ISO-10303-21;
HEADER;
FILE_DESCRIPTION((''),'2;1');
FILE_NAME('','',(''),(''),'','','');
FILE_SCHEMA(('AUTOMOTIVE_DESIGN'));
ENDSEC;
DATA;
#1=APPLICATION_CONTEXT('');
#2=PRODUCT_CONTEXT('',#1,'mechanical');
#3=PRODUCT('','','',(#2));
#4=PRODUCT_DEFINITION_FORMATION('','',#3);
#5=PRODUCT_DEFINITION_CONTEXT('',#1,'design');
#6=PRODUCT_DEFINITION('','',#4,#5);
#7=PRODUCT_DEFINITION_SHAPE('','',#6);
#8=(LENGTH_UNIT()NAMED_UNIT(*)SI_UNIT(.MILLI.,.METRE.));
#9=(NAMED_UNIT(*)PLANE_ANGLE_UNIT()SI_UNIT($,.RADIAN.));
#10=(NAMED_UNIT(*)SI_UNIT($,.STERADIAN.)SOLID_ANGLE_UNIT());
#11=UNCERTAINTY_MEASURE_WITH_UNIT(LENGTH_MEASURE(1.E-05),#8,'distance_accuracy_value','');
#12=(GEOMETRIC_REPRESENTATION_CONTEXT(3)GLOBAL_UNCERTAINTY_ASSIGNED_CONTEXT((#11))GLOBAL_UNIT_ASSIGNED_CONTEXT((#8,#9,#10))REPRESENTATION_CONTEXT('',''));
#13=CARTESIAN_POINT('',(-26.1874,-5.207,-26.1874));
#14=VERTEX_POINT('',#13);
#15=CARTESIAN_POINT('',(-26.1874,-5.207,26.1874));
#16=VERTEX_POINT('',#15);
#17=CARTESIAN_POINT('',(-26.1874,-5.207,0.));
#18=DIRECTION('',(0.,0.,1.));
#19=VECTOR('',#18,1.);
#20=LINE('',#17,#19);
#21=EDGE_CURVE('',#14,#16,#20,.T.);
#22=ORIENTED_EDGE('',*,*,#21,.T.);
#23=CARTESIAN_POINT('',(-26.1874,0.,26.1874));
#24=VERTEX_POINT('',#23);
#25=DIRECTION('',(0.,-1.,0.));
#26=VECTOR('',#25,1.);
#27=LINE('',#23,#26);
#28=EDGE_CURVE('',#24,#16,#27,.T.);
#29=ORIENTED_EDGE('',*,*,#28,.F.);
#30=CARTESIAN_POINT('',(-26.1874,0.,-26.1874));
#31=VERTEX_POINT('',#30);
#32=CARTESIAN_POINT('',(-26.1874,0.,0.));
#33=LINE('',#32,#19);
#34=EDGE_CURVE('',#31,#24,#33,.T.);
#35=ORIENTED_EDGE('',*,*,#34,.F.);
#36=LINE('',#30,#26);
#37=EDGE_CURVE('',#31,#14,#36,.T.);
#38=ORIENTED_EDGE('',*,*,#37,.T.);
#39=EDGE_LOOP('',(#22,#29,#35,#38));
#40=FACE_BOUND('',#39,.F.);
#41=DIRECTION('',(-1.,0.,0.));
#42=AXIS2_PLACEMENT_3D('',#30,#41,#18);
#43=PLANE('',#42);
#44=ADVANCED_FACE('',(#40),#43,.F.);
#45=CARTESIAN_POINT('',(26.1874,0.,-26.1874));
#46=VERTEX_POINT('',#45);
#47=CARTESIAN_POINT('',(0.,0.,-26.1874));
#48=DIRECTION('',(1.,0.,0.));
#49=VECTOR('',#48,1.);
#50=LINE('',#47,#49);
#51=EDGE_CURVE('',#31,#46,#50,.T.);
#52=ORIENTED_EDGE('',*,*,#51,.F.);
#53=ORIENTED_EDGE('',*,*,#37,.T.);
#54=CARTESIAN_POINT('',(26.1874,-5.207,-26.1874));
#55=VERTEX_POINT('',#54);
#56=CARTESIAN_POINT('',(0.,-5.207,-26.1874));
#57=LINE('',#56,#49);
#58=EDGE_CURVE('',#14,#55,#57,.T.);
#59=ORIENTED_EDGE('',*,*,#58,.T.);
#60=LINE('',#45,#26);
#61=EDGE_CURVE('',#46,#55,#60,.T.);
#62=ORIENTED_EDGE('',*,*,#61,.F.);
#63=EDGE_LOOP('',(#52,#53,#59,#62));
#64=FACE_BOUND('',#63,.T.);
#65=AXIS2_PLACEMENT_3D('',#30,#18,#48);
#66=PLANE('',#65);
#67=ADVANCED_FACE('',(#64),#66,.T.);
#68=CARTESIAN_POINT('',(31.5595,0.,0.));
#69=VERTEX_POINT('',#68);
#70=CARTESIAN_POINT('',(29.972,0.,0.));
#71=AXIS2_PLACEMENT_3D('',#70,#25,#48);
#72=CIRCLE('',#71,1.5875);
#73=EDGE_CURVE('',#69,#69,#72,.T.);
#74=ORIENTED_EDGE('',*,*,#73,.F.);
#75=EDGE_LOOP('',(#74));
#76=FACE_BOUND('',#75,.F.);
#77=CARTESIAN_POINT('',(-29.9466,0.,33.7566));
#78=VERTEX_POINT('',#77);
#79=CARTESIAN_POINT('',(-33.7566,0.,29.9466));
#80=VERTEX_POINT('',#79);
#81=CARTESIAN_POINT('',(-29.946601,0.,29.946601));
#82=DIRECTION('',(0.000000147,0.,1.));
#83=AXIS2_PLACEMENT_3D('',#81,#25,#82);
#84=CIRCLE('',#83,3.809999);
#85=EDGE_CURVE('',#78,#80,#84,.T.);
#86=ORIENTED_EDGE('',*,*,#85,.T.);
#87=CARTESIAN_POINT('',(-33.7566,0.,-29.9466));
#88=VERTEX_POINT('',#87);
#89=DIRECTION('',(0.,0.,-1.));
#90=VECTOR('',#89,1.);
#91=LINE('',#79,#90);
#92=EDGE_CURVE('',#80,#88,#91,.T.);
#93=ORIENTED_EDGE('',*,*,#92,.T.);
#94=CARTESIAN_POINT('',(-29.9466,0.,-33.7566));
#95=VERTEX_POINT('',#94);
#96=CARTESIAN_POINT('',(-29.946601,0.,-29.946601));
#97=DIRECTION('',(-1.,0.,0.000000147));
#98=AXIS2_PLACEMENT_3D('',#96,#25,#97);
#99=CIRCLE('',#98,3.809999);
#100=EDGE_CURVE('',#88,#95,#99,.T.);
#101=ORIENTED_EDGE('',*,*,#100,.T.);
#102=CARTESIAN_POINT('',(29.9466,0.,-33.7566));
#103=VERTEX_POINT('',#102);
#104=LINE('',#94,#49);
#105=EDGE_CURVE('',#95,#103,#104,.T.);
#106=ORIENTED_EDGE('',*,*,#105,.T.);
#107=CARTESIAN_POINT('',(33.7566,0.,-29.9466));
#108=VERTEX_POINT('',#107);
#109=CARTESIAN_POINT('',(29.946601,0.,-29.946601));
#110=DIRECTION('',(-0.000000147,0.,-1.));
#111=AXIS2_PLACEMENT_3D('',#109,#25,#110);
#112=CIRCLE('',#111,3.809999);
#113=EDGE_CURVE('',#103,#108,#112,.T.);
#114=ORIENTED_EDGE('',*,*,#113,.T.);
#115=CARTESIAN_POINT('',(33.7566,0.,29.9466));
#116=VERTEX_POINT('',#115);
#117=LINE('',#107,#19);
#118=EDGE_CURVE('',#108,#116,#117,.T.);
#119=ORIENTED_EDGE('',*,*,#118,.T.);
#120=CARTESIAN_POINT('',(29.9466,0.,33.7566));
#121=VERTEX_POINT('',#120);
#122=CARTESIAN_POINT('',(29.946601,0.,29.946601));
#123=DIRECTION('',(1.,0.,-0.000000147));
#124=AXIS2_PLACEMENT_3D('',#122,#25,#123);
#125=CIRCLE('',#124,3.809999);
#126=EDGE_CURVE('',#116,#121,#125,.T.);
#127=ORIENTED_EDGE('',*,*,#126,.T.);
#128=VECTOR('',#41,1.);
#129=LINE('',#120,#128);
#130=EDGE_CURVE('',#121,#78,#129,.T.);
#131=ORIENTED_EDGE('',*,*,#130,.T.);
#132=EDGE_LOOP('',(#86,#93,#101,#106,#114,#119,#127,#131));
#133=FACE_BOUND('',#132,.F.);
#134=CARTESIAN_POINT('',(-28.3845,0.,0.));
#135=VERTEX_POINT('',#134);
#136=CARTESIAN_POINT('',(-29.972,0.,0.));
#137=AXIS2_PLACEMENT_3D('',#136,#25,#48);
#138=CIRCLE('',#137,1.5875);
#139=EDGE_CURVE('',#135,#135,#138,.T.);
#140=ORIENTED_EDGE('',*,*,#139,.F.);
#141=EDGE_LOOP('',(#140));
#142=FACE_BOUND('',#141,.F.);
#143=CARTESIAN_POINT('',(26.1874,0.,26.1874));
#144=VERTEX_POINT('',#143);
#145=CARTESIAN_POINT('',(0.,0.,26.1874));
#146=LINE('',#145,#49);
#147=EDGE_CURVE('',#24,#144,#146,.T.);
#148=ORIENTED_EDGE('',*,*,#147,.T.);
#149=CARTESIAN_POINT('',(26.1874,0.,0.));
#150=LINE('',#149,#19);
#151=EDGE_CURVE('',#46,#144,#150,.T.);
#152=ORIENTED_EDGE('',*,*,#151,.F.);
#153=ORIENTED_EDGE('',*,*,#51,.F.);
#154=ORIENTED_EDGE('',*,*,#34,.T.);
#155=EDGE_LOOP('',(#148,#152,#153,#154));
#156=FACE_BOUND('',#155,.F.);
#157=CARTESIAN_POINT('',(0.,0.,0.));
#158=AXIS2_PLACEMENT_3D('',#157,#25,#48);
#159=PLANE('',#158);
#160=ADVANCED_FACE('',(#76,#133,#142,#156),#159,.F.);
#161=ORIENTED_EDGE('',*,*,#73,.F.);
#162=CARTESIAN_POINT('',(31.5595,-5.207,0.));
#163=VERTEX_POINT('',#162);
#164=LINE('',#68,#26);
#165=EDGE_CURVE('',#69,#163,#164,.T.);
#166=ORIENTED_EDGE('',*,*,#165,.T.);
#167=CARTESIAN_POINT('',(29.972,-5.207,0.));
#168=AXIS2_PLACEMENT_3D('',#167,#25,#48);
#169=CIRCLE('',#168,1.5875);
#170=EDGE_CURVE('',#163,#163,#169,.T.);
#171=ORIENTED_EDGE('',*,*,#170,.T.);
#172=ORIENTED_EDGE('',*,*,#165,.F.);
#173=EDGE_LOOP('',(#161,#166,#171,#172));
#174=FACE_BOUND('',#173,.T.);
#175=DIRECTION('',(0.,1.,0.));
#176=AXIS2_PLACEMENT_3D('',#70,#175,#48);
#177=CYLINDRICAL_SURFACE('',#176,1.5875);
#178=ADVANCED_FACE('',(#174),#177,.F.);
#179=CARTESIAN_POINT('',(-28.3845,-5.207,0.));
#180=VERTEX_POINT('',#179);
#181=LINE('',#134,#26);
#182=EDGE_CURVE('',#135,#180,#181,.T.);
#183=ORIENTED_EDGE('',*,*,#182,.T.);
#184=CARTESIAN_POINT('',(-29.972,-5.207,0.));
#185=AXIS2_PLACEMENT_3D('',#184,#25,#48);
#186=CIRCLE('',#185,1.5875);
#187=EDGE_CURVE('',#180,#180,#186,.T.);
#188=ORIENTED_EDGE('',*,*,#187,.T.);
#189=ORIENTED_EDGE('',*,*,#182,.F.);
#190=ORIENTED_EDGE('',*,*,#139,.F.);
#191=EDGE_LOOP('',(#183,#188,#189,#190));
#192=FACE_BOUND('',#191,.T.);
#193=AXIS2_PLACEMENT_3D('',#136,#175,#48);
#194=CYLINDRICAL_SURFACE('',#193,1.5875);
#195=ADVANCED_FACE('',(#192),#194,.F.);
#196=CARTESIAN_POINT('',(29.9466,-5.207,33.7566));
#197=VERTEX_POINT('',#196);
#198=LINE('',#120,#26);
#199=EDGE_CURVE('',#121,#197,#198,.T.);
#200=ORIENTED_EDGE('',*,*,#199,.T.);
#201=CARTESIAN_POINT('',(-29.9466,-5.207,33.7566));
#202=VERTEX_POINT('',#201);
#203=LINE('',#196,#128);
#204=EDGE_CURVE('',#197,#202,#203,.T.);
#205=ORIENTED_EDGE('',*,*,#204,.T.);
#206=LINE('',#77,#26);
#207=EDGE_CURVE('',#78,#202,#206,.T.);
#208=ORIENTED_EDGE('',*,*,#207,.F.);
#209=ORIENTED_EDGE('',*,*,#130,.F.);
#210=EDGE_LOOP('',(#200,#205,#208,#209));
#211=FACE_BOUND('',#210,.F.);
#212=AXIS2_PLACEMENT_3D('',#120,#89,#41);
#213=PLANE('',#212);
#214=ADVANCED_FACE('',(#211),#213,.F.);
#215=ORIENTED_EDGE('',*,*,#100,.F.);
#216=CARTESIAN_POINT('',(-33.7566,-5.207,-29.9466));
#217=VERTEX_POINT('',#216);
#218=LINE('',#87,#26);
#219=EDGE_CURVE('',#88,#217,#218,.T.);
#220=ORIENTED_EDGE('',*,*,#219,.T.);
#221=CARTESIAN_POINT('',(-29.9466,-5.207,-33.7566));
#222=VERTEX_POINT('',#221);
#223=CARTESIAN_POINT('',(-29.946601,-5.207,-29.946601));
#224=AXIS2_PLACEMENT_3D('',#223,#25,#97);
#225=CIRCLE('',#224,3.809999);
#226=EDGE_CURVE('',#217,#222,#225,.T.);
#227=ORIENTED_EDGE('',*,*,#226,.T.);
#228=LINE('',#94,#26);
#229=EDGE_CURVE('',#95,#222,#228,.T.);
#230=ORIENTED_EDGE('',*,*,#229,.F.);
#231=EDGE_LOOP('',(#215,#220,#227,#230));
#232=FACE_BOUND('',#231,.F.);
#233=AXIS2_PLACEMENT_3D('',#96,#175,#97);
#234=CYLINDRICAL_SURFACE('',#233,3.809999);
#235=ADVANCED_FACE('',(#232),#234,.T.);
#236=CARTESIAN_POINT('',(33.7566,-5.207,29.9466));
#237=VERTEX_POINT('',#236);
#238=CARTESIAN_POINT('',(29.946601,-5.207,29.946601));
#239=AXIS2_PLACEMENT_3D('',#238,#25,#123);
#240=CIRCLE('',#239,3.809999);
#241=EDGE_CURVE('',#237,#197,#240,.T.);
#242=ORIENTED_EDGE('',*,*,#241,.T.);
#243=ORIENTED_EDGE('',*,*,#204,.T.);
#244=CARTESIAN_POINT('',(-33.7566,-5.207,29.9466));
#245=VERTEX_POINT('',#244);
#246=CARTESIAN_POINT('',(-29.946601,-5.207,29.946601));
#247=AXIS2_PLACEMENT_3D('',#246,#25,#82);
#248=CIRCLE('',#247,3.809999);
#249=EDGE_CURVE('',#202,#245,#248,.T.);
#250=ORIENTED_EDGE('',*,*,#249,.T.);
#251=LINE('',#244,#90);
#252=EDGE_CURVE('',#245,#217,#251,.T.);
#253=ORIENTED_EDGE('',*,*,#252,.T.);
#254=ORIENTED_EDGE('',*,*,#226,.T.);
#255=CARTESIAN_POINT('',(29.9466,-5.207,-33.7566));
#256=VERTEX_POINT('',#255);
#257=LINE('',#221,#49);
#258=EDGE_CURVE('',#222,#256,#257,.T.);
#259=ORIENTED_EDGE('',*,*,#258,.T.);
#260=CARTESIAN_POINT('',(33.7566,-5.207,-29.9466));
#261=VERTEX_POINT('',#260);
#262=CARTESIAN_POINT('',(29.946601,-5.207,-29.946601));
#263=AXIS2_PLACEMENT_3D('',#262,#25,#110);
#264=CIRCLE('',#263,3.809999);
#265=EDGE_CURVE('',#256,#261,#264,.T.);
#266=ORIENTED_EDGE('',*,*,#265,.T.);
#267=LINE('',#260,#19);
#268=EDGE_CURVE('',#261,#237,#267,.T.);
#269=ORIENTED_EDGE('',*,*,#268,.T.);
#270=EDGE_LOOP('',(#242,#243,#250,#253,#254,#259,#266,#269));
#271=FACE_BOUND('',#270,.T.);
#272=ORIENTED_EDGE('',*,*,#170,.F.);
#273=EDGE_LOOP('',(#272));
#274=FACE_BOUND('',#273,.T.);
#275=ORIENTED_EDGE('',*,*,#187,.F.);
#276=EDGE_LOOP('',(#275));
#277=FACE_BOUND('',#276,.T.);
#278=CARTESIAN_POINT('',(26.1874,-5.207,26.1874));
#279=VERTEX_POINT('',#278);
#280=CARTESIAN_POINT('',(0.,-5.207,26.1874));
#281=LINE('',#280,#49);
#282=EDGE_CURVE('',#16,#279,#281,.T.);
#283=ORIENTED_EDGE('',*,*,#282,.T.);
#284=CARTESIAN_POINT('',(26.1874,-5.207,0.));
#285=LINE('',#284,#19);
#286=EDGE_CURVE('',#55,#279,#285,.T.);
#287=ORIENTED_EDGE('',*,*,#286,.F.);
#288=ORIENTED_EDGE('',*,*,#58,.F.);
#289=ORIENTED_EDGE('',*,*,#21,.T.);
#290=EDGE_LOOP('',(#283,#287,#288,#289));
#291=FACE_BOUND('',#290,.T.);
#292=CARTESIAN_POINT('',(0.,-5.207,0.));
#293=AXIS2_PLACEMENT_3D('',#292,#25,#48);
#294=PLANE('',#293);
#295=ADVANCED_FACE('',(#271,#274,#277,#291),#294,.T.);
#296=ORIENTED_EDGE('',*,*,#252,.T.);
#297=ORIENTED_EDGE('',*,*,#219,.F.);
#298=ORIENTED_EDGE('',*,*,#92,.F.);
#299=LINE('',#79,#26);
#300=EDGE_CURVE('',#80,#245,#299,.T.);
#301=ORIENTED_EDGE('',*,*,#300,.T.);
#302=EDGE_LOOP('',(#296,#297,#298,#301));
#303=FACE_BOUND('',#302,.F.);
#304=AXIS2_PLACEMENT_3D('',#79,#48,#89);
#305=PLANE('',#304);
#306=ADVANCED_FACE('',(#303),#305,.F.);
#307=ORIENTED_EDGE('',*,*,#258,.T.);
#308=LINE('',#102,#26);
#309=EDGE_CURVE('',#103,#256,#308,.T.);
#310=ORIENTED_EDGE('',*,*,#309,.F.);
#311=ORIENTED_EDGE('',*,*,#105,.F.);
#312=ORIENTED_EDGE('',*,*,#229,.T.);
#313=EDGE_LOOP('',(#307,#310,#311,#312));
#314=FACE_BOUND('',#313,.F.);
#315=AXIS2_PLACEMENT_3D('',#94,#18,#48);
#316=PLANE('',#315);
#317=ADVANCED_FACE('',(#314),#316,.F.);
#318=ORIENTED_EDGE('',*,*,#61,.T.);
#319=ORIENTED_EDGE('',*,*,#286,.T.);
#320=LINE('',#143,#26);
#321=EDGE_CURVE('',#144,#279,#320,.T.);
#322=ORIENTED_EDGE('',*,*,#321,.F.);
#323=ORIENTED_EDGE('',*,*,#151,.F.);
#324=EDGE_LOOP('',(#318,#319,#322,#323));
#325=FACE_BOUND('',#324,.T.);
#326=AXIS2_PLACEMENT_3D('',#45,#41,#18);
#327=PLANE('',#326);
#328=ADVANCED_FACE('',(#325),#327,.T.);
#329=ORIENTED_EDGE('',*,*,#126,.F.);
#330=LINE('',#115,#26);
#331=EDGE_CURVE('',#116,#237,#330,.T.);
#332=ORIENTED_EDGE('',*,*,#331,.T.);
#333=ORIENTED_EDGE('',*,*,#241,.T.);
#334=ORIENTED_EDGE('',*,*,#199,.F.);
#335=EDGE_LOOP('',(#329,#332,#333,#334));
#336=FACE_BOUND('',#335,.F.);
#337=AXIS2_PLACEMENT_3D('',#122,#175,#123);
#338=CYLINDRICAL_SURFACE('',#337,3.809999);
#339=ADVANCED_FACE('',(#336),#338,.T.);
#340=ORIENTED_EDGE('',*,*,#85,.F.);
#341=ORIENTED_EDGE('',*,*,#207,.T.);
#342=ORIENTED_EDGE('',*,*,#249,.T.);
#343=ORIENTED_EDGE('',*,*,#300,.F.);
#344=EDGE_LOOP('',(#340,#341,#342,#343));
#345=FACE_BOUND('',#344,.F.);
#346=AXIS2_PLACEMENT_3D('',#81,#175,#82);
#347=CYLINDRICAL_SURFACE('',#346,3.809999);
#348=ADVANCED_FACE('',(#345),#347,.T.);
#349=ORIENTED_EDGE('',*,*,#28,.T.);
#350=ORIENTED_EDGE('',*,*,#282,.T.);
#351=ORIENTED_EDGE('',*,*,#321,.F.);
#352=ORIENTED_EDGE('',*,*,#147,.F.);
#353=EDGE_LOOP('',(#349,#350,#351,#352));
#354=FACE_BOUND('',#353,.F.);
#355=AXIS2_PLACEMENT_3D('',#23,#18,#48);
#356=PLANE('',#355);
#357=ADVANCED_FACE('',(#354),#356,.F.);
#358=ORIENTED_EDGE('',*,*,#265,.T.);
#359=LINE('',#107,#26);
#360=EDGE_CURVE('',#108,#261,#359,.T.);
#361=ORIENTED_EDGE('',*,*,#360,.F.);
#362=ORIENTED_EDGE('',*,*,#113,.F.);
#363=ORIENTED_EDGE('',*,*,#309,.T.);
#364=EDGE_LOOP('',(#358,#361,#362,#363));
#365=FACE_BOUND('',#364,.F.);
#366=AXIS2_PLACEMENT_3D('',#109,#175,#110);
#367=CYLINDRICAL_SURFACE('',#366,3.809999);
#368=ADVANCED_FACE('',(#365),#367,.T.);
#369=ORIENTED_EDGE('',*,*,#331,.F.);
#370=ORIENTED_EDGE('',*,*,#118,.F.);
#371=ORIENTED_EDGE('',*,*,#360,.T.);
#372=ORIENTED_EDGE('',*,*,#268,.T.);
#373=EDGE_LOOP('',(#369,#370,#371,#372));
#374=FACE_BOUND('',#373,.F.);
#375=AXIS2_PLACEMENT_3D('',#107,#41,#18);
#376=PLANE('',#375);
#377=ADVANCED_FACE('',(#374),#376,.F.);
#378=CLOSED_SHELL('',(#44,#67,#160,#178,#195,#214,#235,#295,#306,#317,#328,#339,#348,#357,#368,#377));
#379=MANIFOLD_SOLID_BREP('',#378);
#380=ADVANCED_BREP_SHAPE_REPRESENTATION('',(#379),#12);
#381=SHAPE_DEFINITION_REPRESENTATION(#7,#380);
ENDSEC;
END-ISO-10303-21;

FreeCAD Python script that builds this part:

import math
import FreeCAD as App
import Part
import Sketcher
from FreeCAD import Vector
Q = App.Units.Quantity

doc = App.newDocument("Part")
params = doc.addObject("Spreadsheet::Sheet", "Params")
for row, (alias, value) in enumerate([
    ("sketch1_radius", "0.15 in"),
    ("sketch1_diameter", "0.125 in"),
    ("sketch1_width", "2.358 in"),
    ("sketch1_width2", "2.062 in"),
    ("pad1_length", "0.205 in"),
], start=1):
    params.set(f"A{row}", alias)
    params.set(f"B{row}", "=" + value)
    params.setAlias(f"B{row}", alias)

body = doc.addObject("PartDesign::Body", "Body")

sketch1 = body.newObject("Sketcher::SketchObject", "Sketch")
sketch1.AttachmentSupport = (doc.getObject("XZ_Plane"), [""])
sketch1.MapMode = "FlatFace"
sketch1.addGeometry([
    Part.LineSegment(Vector(-29.9466, -33.7566, 0), Vector(29.9466, -33.7566, 0)),
    Part.ArcOfCircle(Part.Circle(Vector(29.946601, -29.946601, 0), Vector(0, 0, 1), 3.809999), math.radians(-90.000008), math.radians(0.000008)),
    Part.LineSegment(Vector(33.7566, -29.9466, 0), Vector(33.7566, 29.9466, 0)),
    Part.ArcOfCircle(Part.Circle(Vector(29.946601, 29.946601, 0), Vector(0, 0, 1), 3.809999), math.radians(-0.000008), math.radians(90.000008)),
    Part.LineSegment(Vector(29.9466, 33.7566, 0), Vector(-29.9466, 33.7566, 0)),
    Part.ArcOfCircle(Part.Circle(Vector(-29.946601, 29.946601, 0), Vector(0, 0, 1), 3.809999), math.radians(89.999992), math.radians(180.000008)),
    Part.LineSegment(Vector(-33.7566, 29.9466, 0), Vector(-33.7566, -29.9466, 0)),
    Part.ArcOfCircle(Part.Circle(Vector(-29.946601, -29.946601, 0), Vector(0, 0, 1), 3.809999), math.radians(179.999992), math.radians(270.000008)),
    Part.Circle(Vector(-29.972, 0, 0), Vector(0, 0, 1), 1.5875),
    Part.LineSegment(Vector(26.1874, -26.1874, 0), Vector(-26.1874, -26.1874, 0)),
    Part.LineSegment(Vector(-26.1874, -26.1874, 0), Vector(-26.1874, 26.1874, 0)),
    Part.LineSegment(Vector(-26.1874, 26.1874, 0), Vector(26.1874, 26.1874, 0)),
    Part.LineSegment(Vector(26.1874, 26.1874, 0), Vector(26.1874, -26.1874, 0)),
    Part.Circle(Vector(29.972, 0, 0), Vector(0, 0, 1), 1.5875),
], False)
sketch1.addConstraint([
    Sketcher.Constraint("Tangent", 0, 2, 1, 1),
    Sketcher.Constraint("Tangent", 1, 2, 2, 1),
    Sketcher.Constraint("Tangent", 2, 2, 3, 1),
    Sketcher.Constraint("Tangent", 3, 2, 4, 1),
    Sketcher.Constraint("Tangent", 4, 2, 5, 1),
    Sketcher.Constraint("Tangent", 5, 2, 6, 1),
    Sketcher.Constraint("Tangent", 6, 2, 7, 1),
    Sketcher.Constraint("Tangent", 7, 2, 0, 1),
    Sketcher.Constraint("Coincident", 9, 2, 10, 1),
    Sketcher.Constraint("Coincident", 10, 2, 11, 1),
    Sketcher.Constraint("Coincident", 11, 2, 12, 1),
    Sketcher.Constraint("Coincident", 12, 2, 9, 1),
    Sketcher.Constraint("Horizontal", 0),
    Sketcher.Constraint("Vertical", 2),
    Sketcher.Constraint("Horizontal", 4),
    Sketcher.Constraint("Vertical", 6),
    Sketcher.Constraint("Horizontal", 9),
    Sketcher.Constraint("Vertical", 10),
    Sketcher.Constraint("Horizontal", 11),
    Sketcher.Constraint("Vertical", 12),
    Sketcher.Constraint("Equal", 1, 3),
    Sketcher.Constraint("Equal", 3, 5),
    Sketcher.Constraint("Equal", 5, 7),
    Sketcher.Constraint("Equal", 8, 13),
    Sketcher.Constraint("Symmetric", 1, 3, 5, 3, -1, 1),
    Sketcher.Constraint("Symmetric", 8, 3, 13, 3, -1, 1),
    Sketcher.Constraint("Symmetric", 9, 2, 11, 2, -1, 1),
    Sketcher.Constraint("PointOnObject", 8, 3, -1),
    Sketcher.Constraint("Equal", 4, 2),
    Sketcher.Constraint("Equal", 11, 10),
    Sketcher.Constraint("Radius", 1, Q("0.15 in")),
    Sketcher.Constraint("Diameter", 8, Q("0.125 in")),
    Sketcher.Constraint("DistanceX", 0, 1, 0, 2, Q("2.358 in")),
    Sketcher.Constraint("DistanceX", 9, 2, 9, 1, Q("2.062 in")),
    Sketcher.Constraint("DistanceX", 8, 3, -1, 1, Q("1.18 in")),
])
sketch1.setExpression("Constraints[30]", "Params.sketch1_radius")
sketch1.setExpression("Constraints[31]", "Params.sketch1_diameter")
sketch1.setExpression("Constraints[32]", "Params.sketch1_width")
sketch1.setExpression("Constraints[33]", "Params.sketch1_width2")
pad1 = body.newObject("PartDesign::Pad", "Pad")
pad1.Profile = sketch1
pad1.setExpression("Length", "Params.pad1_length")

doc.recompute()
